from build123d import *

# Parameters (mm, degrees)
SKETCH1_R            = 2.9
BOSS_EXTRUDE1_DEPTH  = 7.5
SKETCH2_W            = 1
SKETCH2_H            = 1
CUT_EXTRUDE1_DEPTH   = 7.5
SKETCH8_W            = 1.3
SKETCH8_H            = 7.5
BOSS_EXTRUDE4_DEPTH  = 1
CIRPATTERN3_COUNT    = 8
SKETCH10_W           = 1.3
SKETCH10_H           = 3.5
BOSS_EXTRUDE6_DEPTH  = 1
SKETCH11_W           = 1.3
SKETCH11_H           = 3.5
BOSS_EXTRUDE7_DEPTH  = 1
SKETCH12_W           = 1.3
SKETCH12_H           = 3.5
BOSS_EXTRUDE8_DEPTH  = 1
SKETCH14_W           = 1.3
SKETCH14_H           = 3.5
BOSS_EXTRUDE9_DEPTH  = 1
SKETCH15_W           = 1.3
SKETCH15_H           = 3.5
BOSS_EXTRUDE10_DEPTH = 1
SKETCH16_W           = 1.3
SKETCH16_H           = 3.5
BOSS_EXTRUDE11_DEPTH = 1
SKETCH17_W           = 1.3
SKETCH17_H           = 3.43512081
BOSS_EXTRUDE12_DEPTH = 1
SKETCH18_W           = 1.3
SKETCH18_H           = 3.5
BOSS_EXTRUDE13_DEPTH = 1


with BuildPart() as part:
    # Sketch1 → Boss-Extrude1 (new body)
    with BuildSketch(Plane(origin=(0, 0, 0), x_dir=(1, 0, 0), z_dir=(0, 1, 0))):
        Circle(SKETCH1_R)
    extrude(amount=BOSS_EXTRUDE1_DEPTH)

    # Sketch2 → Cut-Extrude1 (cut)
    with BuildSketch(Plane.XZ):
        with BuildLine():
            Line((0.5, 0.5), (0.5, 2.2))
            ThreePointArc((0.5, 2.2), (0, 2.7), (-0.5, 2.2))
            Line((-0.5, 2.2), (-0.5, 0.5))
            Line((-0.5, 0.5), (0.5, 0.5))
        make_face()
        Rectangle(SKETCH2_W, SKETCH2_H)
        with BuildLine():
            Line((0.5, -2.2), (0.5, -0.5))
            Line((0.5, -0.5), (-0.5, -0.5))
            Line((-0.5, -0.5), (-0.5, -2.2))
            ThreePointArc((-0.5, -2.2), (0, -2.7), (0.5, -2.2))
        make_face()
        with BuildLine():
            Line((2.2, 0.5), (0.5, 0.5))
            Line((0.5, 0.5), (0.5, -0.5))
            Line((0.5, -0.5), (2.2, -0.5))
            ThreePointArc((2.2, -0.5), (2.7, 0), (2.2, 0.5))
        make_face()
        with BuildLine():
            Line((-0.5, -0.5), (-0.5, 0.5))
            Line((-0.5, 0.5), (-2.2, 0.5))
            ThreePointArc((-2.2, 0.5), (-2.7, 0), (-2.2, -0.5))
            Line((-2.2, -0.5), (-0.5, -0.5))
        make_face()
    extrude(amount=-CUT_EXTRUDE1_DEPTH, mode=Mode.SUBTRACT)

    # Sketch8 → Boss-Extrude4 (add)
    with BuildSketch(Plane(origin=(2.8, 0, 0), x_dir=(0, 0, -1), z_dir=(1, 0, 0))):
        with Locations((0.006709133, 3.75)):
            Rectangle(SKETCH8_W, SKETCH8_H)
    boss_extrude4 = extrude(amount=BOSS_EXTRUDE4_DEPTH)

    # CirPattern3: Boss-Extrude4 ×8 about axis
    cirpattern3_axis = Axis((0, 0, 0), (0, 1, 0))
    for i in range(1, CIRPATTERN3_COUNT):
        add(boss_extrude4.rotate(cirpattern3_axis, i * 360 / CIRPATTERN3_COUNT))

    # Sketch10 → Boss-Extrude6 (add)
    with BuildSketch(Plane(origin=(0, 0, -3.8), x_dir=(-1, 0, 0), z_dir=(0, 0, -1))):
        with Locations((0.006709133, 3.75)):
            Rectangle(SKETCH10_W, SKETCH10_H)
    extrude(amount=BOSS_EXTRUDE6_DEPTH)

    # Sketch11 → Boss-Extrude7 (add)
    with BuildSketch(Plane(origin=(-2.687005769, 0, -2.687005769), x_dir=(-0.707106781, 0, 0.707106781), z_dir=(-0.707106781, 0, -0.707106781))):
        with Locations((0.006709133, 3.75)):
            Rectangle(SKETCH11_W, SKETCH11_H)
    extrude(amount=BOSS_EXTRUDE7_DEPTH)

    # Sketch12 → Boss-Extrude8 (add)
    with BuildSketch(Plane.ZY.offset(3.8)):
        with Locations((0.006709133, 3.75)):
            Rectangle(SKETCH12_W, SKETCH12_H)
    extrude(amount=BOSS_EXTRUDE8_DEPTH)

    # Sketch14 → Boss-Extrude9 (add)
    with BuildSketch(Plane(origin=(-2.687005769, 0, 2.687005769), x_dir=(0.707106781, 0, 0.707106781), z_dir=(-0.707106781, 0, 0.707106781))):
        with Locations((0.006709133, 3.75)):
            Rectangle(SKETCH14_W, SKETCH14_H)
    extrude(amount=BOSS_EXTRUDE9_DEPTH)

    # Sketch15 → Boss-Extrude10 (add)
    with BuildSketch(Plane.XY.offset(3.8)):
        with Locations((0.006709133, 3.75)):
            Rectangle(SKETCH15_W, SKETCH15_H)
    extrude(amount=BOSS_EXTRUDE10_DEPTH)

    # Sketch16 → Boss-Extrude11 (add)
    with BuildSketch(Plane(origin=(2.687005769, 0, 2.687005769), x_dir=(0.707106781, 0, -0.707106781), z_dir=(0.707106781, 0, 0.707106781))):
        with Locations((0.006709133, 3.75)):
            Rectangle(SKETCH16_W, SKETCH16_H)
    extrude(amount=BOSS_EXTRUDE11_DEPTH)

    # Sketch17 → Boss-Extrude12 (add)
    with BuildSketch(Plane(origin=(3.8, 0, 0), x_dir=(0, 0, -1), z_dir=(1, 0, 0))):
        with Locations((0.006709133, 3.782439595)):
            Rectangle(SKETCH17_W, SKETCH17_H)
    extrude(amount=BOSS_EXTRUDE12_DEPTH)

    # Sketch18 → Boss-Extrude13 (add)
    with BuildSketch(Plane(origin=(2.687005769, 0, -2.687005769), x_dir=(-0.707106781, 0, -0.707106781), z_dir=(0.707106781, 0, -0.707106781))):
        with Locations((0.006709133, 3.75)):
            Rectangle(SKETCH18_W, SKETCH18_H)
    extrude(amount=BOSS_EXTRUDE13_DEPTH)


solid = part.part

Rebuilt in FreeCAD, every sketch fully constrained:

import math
import FreeCAD as App
import Part
import Sketcher
Q = App.Units.Quantity

doc = App.newDocument("Part")
body = doc.addObject("PartDesign::Body", "Body")

# Sketch on XZ plane
sketch1 = body.newObject("Sketcher::SketchObject", "Sketch")
sketch1.AttachmentSupport = (doc.getObject("XZ_Plane"), [""])
sketch1.MapMode = "FlatFace"
sketch1.addGeometry(Part.Circle(App.Vector(0, 0, 0), App.Vector(0, 0, 1), 2.9), False)
sketch1.addConstraint(Sketcher.Constraint("Coincident", 0, 3, -1, 1))
sketch1.addConstraint(Sketcher.Constraint("Diameter", 0, Q("5.8 mm")))
pad1 = body.newObject("PartDesign::Pad", "Pad")
pad1.Profile = sketch1
pad1.Length = 7.5
pad1.Reversed = True

# Sketch on XZ plane
sketch2 = body.newObject("Sketcher::SketchObject", "Sketch001")
sketch2.AttachmentSupport = (doc.getObject("XZ_Plane"), [""])
sketch2.MapMode = "FlatFace"
sketch2.addGeometry(Part.ArcOfCircle(Part.Circle(App.Vector(0, 2.2, 0), App.Vector(0, 0, 1), 0.5), math.radians(0), math.radians(180)), False)
sketch2.addGeometry(Part.LineSegment(App.Vector(-0.5, 2.2, 0), App.Vector(-0.5, 0.5, 0)), False)
sketch2.addGeometry(Part.LineSegment(App.Vector(-0.5, 0.5, 0), App.Vector(-2.2, 0.5, 0)), False)
sketch2.addGeometry(Part.ArcOfCircle(Part.Circle(App.Vector(-2.2, 0, 0), App.Vector(0, 0, 1), 0.5), math.radians(90), math.radians(270)), False)
sketch2.addGeometry(Part.LineSegment(App.Vector(-2.2, -0.5, 0), App.Vector(-0.5, -0.5, 0)), False)
sketch2.addGeometry(Part.LineSegment(App.Vector(-0.5, -0.5, 0), App.Vector(-0.5, -2.2, 0)), False)
sketch2.addGeometry(Part.ArcOfCircle(Part.Circle(App.Vector(0, -2.2, 0), App.Vector(0, 0, 1), 0.5), math.radians(180), math.radians(360)), False)
sketch2.addGeometry(Part.LineSegment(App.Vector(0.5, -2.2, 0), App.Vector(0.5, -0.5, 0)), False)
sketch2.addGeometry(Part.LineSegment(App.Vector(0.5, -0.5, 0), App.Vector(2.2, -0.5, 0)), False)
sketch2.addGeometry(Part.ArcOfCircle(Part.Circle(App.Vector(2.2, 0, 0), App.Vector(0, 0, 1), 0.5), math.radians(-90), math.radians(90)), False)
sketch2.addGeometry(Part.LineSegment(App.Vector(2.2, 0.5, 0), App.Vector(0.5, 0.5, 0)), False)
sketch2.addGeometry(Part.LineSegment(App.Vector(0.5, 0.5, 0), App.Vector(0.5, 2.2, 0)), False)
sketch2.addConstraint(Sketcher.Constraint("Tangent", 0, 2, 1, 1))
sketch2.addConstraint(Sketcher.Constraint("Coincident", 1, 2, 2, 1))
sketch2.addConstraint(Sketcher.Constraint("Tangent", 2, 2, 3, 1))
sketch2.addConstraint(Sketcher.Constraint("Tangent", 3, 2, 4, 1))
sketch2.addConstraint(Sketcher.Constraint("Coincident", 4, 2, 5, 1))
sketch2.addConstraint(Sketcher.Constraint("Tangent", 5, 2, 6, 1))
sketch2.addConstraint(Sketcher.Constraint("Tangent", 6, 2, 7, 1))
sketch2.addConstraint(Sketcher.Constraint("Coincident", 7, 2, 8, 1))
sketch2.addConstraint(Sketcher.Constraint("Tangent", 8, 2, 9, 1))
sketch2.addConstraint(Sketcher.Constraint("Tangent", 9, 2, 10, 1))
sketch2.addConstraint(Sketcher.Constraint("Coincident", 10, 2, 11, 1))
sketch2.addConstraint(Sketcher.Constraint("Tangent", 11, 2, 0, 1))
sketch2.addConstraint(Sketcher.Constraint("Vertical", 1))
sketch2.addConstraint(Sketcher.Constraint("Horizontal", 2))
sketch2.addConstraint(Sketcher.Constraint("Horizontal", 4))
sketch2.addConstraint(Sketcher.Constraint("Vertical", 5))
sketch2.addConstraint(Sketcher.Constraint("Vertical", 7))
sketch2.addConstraint(Sketcher.Constraint("Horizontal", 8))
sketch2.addConstraint(Sketcher.Constraint("Horizontal", 10))
sketch2.addConstraint(Sketcher.Constraint("Vertical", 11))
sketch2.addConstraint(Sketcher.Constraint("Equal", 0, 3))
sketch2.addConstraint(Sketcher.Constraint("Equal", 3, 6))
sketch2.addConstraint(Sketcher.Constraint("Equal", 6, 9))
sketch2.addConstraint(Sketcher.Constraint("Symmetric", 0, 3, 6, 3, -1, 1))
sketch2.addConstraint(Sketcher.Constraint("Symmetric", 3, 3, 9, 3, -1, 1))
sketch2.addConstraint(Sketcher.Constraint("Symmetric", 4, 2, 7, 2, -2))
sketch2.addConstraint(Sketcher.Constraint("Equal", 10, 1))
sketch2.addConstraint(Sketcher.Constraint("Radius", 0, Q("0.5 mm")))
sketch2.addConstraint(Sketcher.Constraint("DistanceX", 2, 2, 2, 1, Q("1.7 mm")))
pocket1 = body.newObject("PartDesign::Pocket", "Pocket")
pocket1.Profile = sketch2
pocket1.Length = 7.5

# Sketch on YZ plane
sketch3 = body.newObject("Sketcher::SketchObject", "Sketch002")
sketch3.AttachmentSupport = (doc.getObject("YZ_Plane"), [""])
sketch3.MapMode = "FlatFace"
sketch3.AttachmentOffset = App.Placement(App.Vector(0, 0, 2.8), App.Rotation())
sketch3.addGeometry(Part.LineSegment(App.Vector(7.5, 0.6, 0), App.Vector(0, 0.6, 0)), False)
sketch3.addGeometry(Part.LineSegment(App.Vector(0, 0.6, 0), App.Vector(0, -0.7, 0)), False)
sketch3.addGeometry(Part.LineSegment(App.Vector(0, -0.7, 0), App.Vector(7.5, -0.7, 0)), False)
sketch3.addGeometry(Part.LineSegment(App.Vector(7.5, -0.7, 0), App.Vector(7.5, 0.6, 0)), False)
sketch3.addConstraint(Sketcher.Constraint("Coincident", 0, 2, 1, 1))
sketch3.addConstraint(Sketcher.Constraint("Coincident", 1, 2, 2, 1))
sketch3.addConstraint(Sketcher.Constraint("Coincident", 2, 2, 3, 1))
sketch3.addConstraint(Sketcher.Constraint("Coincident", 3, 2, 0, 1))
sketch3.addConstraint(Sketcher.Constraint("Horizontal", 0))
sketch3.addConstraint(Sketcher.Constraint("Vertical", 1))
sketch3.addConstraint(Sketcher.Constraint("Horizontal", 2))
sketch3.addConstraint(Sketcher.Constraint("Vertical", 3))
sketch3.addConstraint(Sketcher.Constraint("PointOnObject", 0, 2, -2))
sketch3.addConstraint(Sketcher.Constraint("DistanceX", 0, 2, 0, 1, Q("7.5 mm")))
sketch3.addConstraint(Sketcher.Constraint("DistanceY", 1, 2, 1, 1, Q("1.3 mm")))
sketch3.addConstraint(Sketcher.Constraint("DistanceY", -1, 1, 0, 2, Q("0.643291 mm")))
pad2 = body.newObject("PartDesign::Pad", "Pad001")
pad2.Profile = sketch3
pad2.Length = 1
doc.recompute()

polarpattern = body.newObject("PartDesign::PolarPattern", "PolarPattern")
polarpattern.Originals = [pad2]
polarpattern.Axis = (doc.getObject("Y_Axis"), [""])
polarpattern.Angle = 360
polarpattern.Occurrences = 8
body.Tip = polarpattern

# Sketch on XY plane
sketch4 = body.newObject("Sketcher::SketchObject", "Sketch003")
sketch4.AttachmentSupport = (doc.getObject("XY_Plane"), [""])
sketch4.MapMode = "FlatFace"
sketch4.AttachmentOffset = App.Placement(App.Vector(0, 0, -3.8), App.Rotation())
sketch4.addGeometry(Part.LineSegment(App.Vector(0.6, 5.5, 0), App.Vector(0.6, 2, 0)), False)
sketch4.addGeometry(Part.LineSegment(App.Vector(0.6, 2, 0), App.Vector(-0.7, 2, 0)), False)
sketch4.addGeometry(Part.LineSegment(App.Vector(-0.7, 2, 0), App.Vector(-0.7, 5.5, 0)), False)
sketch4.addGeometry(Part.LineSegment(App.Vector(-0.7, 5.5, 0), App.Vector(0.6, 5.5, 0)), False)
sketch4.addConstraint(Sketcher.Constraint("Coincident", 0, 2, 1, 1))
sketch4.addConstraint(Sketcher.Constraint("Coincident", 1, 2, 2, 1))
sketch4.addConstraint(Sketcher.Constraint("Coincident", 2, 2, 3, 1))
sketch4.addConstraint(Sketcher.Constraint("Coincident", 3, 2, 0, 1))
sketch4.addConstraint(Sketcher.Constraint("Vertical", 0))
sketch4.addConstraint(Sketcher.Constraint("Horizontal", 1))
sketch4.addConstraint(Sketcher.Constraint("Vertical", 2))
sketch4.addConstraint(Sketcher.Constraint("Horizontal", 3))
sketch4.addConstraint(Sketcher.Constraint("DistanceX", 1, 2, 1, 1, Q("1.3 mm")))
sketch4.addConstraint(Sketcher.Constraint("DistanceY", 0, 2, 0, 1, Q("3.5 mm")))
sketch4.addConstraint(Sketcher.Constraint("DistanceY", -1, 1, 0, 2, Q("2 mm")))
sketch4.addConstraint(Sketcher.Constraint("DistanceX", -1, 1, 0, 2, Q("0.643291 mm")))
pad3 = body.newObject("PartDesign::Pad", "Pad002")
pad3.Profile = sketch4
pad3.Length = 1
pad3.Reversed = True

# Sketch on an angled plane
sketch5 = body.newObject("Sketcher::SketchObject", "Sketch004")
sketch5.Placement = App.Placement(App.Vector(-2.687006, 0, -2.687006), App.Rotation(App.Vector(-0.707106781, 0, 0.707106781), App.Vector(0, 0.999999999, 0), App.Vector(-0.707106781, 0, -0.707106781), "ZXY"))
sketch5.addGeometry(Part.LineSegment(App.Vector(-0.6, 5.5, 0), App.Vector(-0.6, 2, 0)), False)
sketch5.addGeometry(Part.LineSegment(App.Vector(-0.6, 2, 0), App.Vector(0.7, 2, 0)), False)
sketch5.addGeometry(Part.LineSegment(App.Vector(0.7, 2, 0), App.Vector(0.7, 5.5, 0)), False)
sketch5.addGeometry(Part.LineSegment(App.Vector(0.7, 5.5, 0), App.Vector(-0.6, 5.5, 0)), False)
sketch5.addConstraint(Sketcher.Constraint("Coincident", 0, 2, 1, 1))
sketch5.addConstraint(Sketcher.Constraint("Coincident", 1, 2, 2, 1))
sketch5.addConstraint(Sketcher.Constraint("Coincident", 2, 2, 3, 1))
sketch5.addConstraint(Sketcher.Constraint("Coincident", 3, 2, 0, 1))
sketch5.addConstraint(Sketcher.Constraint("Vertical", 0))
sketch5.addConstraint(Sketcher.Constraint("Horizontal", 1))
sketch5.addConstraint(Sketcher.Constraint("Vertical", 2))
sketch5.addConstraint(Sketcher.Constraint("Horizontal", 3))
sketch5.addConstraint(Sketcher.Constraint("DistanceX", 1, 1, 1, 2, Q("1.3 mm")))
sketch5.addConstraint(Sketcher.Constraint("DistanceY", 0, 2, 0, 1, Q("3.5 mm")))
sketch5.addConstraint(Sketcher.Constraint("DistanceY", -1, 1, 0, 2, Q("2 mm")))
sketch5.addConstraint(Sketcher.Constraint("DistanceX", 0, 2, -1, 1, Q("0.643291 mm")))
pad4 = body.newObject("PartDesign::Pad", "Pad003")
pad4.Profile = sketch5
pad4.Length = 1

# Sketch on YZ plane
sketch6 = body.newObject("Sketcher::SketchObject", "Sketch005")
sketch6.AttachmentSupport = (doc.getObject("YZ_Plane"), [""])
sketch6.MapMode = "FlatFace"
sketch6.AttachmentOffset = App.Placement(App.Vector(0, 0, -3.8), App.Rotation())
sketch6.addGeometry(Part.LineSegment(App.Vector(5.5, -0.6, 0), App.Vector(2, -0.6, 0)), False)
sketch6.addGeometry(Part.LineSegment(App.Vector(2, -0.6, 0), App.Vector(2, 0.7, 0)), False)
sketch6.addGeometry(Part.LineSegment(App.Vector(2, 0.7, 0), App.Vector(5.5, 0.7, 0)), False)
sketch6.addGeometry(Part.LineSegment(App.Vector(5.5, 0.7, 0), App.Vector(5.5, -0.6, 0)), False)
sketch6.addConstraint(Sketcher.Constraint("Coincident", 0, 2, 1, 1))
sketch6.addConstraint(Sketcher.Constraint("Coincident", 1, 2, 2, 1))
sketch6.addConstraint(Sketcher.Constraint("Coincident", 2, 2, 3, 1))
sketch6.addConstraint(Sketcher.Constraint("Coincident", 3, 2, 0, 1))
sketch6.addConstraint(Sketcher.Constraint("Horizontal", 0))
sketch6.addConstraint(Sketcher.Constraint("Vertical", 1))
sketch6.addConstraint(Sketcher.Constraint("Horizontal", 2))
sketch6.addConstraint(Sketcher.Constraint("Vertical", 3))
sketch6.addConstraint(Sketcher.Constraint("DistanceX", 0, 2, 0, 1, Q("3.5 mm")))
sketch6.addConstraint(Sketcher.Constraint("DistanceY", 1, 1, 1, 2, Q("1.3 mm")))
sketch6.addConstraint(Sketcher.Constraint("DistanceX", -1, 1, 0, 2, Q("2 mm")))
sketch6.addConstraint(Sketcher.Constraint("DistanceY", 0, 2, -1, 1, Q("0.643291 mm")))
pad5 = body.newObject("PartDesign::Pad", "Pad004")
pad5.Profile = sketch6
pad5.Length = 1
pad5.Reversed = True

# Sketch on an angled plane
sketch7 = body.newObject("Sketcher::SketchObject", "Sketch006")
sketch7.Placement = App.Placement(App.Vector(-2.687006, 0, 2.687006), App.Rotation(App.Vector(0.707106781, 0, 0.707106781), App.Vector(0, 0.999999999, 0), App.Vector(-0.707106781, 0, 0.707106781), "ZXY"))
sketch7.addGeometry(Part.LineSegment(App.Vector(-0.6, 5.5, 0), App.Vector(-0.6, 2, 0)), False)
sketch7.addGeometry(Part.LineSegment(App.Vector(-0.6, 2, 0), App.Vector(0.7, 2, 0)), False)
sketch7.addGeometry(Part.LineSegment(App.Vector(0.7, 2, 0), App.Vector(0.7, 5.5, 0)), False)
sketch7.addGeometry(Part.LineSegment(App.Vector(0.7, 5.5, 0), App.Vector(-0.6, 5.5, 0)), False)
sketch7.addConstraint(Sketcher.Constraint("Coincident", 0, 2, 1, 1))
sketch7.addConstraint(Sketcher.Constraint("Coincident", 1, 2, 2, 1))
sketch7.addConstraint(Sketcher.Constraint("Coincident", 2, 2, 3, 1))
sketch7.addConstraint(Sketcher.Constraint("Coincident", 3, 2, 0, 1))
sketch7.addConstraint(Sketcher.Constraint("Vertical", 0))
sketch7.addConstraint(Sketcher.Constraint("Horizontal", 1))
sketch7.addConstraint(Sketcher.Constraint("Vertical", 2))
sketch7.addConstraint(Sketcher.Constraint("Horizontal", 3))
sketch7.addConstraint(Sketcher.Constraint("DistanceX", 1, 1, 1, 2, Q("1.3 mm")))
sketch7.addConstraint(Sketcher.Constraint("DistanceY", 0, 2, 0, 1, Q("3.5 mm")))
sketch7.addConstraint(Sketcher.Constraint("DistanceY", -1, 1, 0, 2, Q("2 mm")))
sketch7.addConstraint(Sketcher.Constraint("DistanceX", 0, 2, -1, 1, Q("0.643291 mm")))
pad6 = body.newObject("PartDesign::Pad", "Pad005")
pad6.Profile = sketch7
pad6.Length = 1

# Sketch on XY plane
sketch8 = body.newObject("Sketcher::SketchObject", "Sketch007")
sketch8.AttachmentSupport = (doc.getObject("XY_Plane"), [""])
sketch8.MapMode = "FlatFace"
sketch8.AttachmentOffset = App.Placement(App.Vector(0, 0, 3.8), App.Rotation())
sketch8.addGeometry(Part.LineSegment(App.Vector(-0.6, 5.5, 0), App.Vector(-0.6, 2, 0)), False)
sketch8.addGeometry(Part.LineSegment(App.Vector(-0.6, 2, 0), App.Vector(0.7, 2, 0)), False)
sketch8.addGeometry(Part.LineSegment(App.Vector(0.7, 2, 0), App.Vector(0.7, 5.5, 0)), False)
sketch8.addGeometry(Part.LineSegment(App.Vector(0.7, 5.5, 0), App.Vector(-0.6, 5.5, 0)), False)
sketch8.addConstraint(Sketcher.Constraint("Coincident", 0, 2, 1, 1))
sketch8.addConstraint(Sketcher.Constraint("Coincident", 1, 2, 2, 1))
sketch8.addConstraint(Sketcher.Constraint("Coincident", 2, 2, 3, 1))
sketch8.addConstraint(Sketcher.Constraint("Coincident", 3, 2, 0, 1))
sketch8.addConstraint(Sketcher.Constraint("Vertical", 0))
sketch8.addConstraint(Sketcher.Constraint("Horizontal", 1))
sketch8.addConstraint(Sketcher.Constraint("Vertical", 2))
sketch8.addConstraint(Sketcher.Constraint("Horizontal", 3))
sketch8.addConstraint(Sketcher.Constraint("DistanceX", 1, 1, 1, 2, Q("1.3 mm")))
sketch8.addConstraint(Sketcher.Constraint("DistanceY", 0, 2, 0, 1, Q("3.5 mm")))
sketch8.addConstraint(Sketcher.Constraint("DistanceY", -1, 1, 0, 2, Q("2 mm")))
sketch8.addConstraint(Sketcher.Constraint("DistanceX", 0, 2, -1, 1, Q("0.643291 mm")))
pad7 = body.newObject("PartDesign::Pad", "Pad006")
pad7.Profile = sketch8
pad7.Length = 1

# Sketch on an angled plane
sketch9 = body.newObject("Sketcher::SketchObject", "Sketch008")
sketch9.Placement = App.Placement(App.Vector(2.687006, 0, 2.687006), App.Rotation(App.Vector(0.707106781, 0, -0.707106781), App.Vector(0, 0.999999999, 0), App.Vector(0.707106781, 0, 0.707106781), "ZXY"))
sketch9.addGeometry(Part.LineSegment(App.Vector(-0.6, 5.5, 0), App.Vector(-0.6, 2, 0)), False)
sketch9.addGeometry(Part.LineSegment(App.Vector(-0.6, 2, 0), App.Vector(0.7, 2, 0)), False)
sketch9.addGeometry(Part.LineSegment(App.Vector(0.7, 2, 0), App.Vector(0.7, 5.5, 0)), False)
sketch9.addGeometry(Part.LineSegment(App.Vector(0.7, 5.5, 0), App.Vector(-0.6, 5.5, 0)), False)
sketch9.addConstraint(Sketcher.Constraint("Coincident", 0, 2, 1, 1))
sketch9.addConstraint(Sketcher.Constraint("Coincident", 1, 2, 2, 1))
sketch9.addConstraint(Sketcher.Constraint("Coincident", 2, 2, 3, 1))
sketch9.addConstraint(Sketcher.Constraint("Coincident", 3, 2, 0, 1))
sketch9.addConstraint(Sketcher.Constraint("Vertical", 0))
sketch9.addConstraint(Sketcher.Constraint("Horizontal", 1))
sketch9.addConstraint(Sketcher.Constraint("Vertical", 2))
sketch9.addConstraint(Sketcher.Constraint("Horizontal", 3))
sketch9.addConstraint(Sketcher.Constraint("DistanceX", 1, 1, 1, 2, Q("1.3 mm")))
sketch9.addConstraint(Sketcher.Constraint("DistanceY", 0, 2, 0, 1, Q("3.5 mm")))
sketch9.addConstraint(Sketcher.Constraint("DistanceY", -1, 1, 0, 2, Q("2 mm")))
sketch9.addConstraint(Sketcher.Constraint("DistanceX", 0, 2, -1, 1, Q("0.643291 mm")))
pad8 = body.newObject("PartDesign::Pad", "Pad007")
pad8.Profile = sketch9
pad8.Length = 1

# Sketch on YZ plane
sketch10 = body.newObject("Sketcher::SketchObject", "Sketch009")
sketch10.AttachmentSupport = (doc.getObject("YZ_Plane"), [""])
sketch10.MapMode = "FlatFace"
sketch10.AttachmentOffset = App.Placement(App.Vector(0, 0, 3.8), App.Rotation())
sketch10.addGeometry(Part.LineSegment(App.Vector(5.5, 0.6, 0), App.Vector(2.1, 0.6, 0)), False)
sketch10.addGeometry(Part.LineSegment(App.Vector(2.1, 0.6, 0), App.Vector(2.1, -0.7, 0)), False)
sketch10.addGeometry(Part.LineSegment(App.Vector(2.1, -0.7, 0), App.Vector(5.5, -0.7, 0)), False)
sketch10.addGeometry(Part.LineSegment(App.Vector(5.5, -0.7, 0), App.Vector(5.5, 0.6, 0)), False)
sketch10.addConstraint(Sketcher.Constraint("Coincident", 0, 2, 1, 1))
sketch10.addConstraint(Sketcher.Constraint("Coincident", 1, 2, 2, 1))
sketch10.addConstraint(Sketcher.Constraint("Coincident", 2, 2, 3, 1))
sketch10.addConstraint(Sketcher.Constraint("Coincident", 3, 2, 0, 1))
sketch10.addConstraint(Sketcher.Constraint("Horizontal", 0))
sketch10.addConstraint(Sketcher.Constraint("Vertical", 1))
sketch10.addConstraint(Sketcher.Constraint("Horizontal", 2))
sketch10.addConstraint(Sketcher.Constraint("Vertical", 3))
sketch10.addConstraint(Sketcher.Constraint("DistanceY", 1, 2, 1, 1, Q("1.3 mm")))
sketch10.addConstraint(Sketcher.Constraint("DistanceX", -1, 1, 2, 2, Q("5.5 mm")))
sketch10.addConstraint(Sketcher.Constraint("DistanceX", 0, 2, 0, 1, Q("3.435121 mm")))
sketch10.addConstraint(Sketcher.Constraint("DistanceY", -1, 1, 0, 2, Q("0.643291 mm")))
pad9 = body.newObject("PartDesign::Pad", "Pad008")
pad9.Profile = sketch10
pad9.Length = 1

# Sketch on an angled plane
sketch11 = body.newObject("Sketcher::SketchObject", "Sketch010")
sketch11.Placement = App.Placement(App.Vector(2.687006, 0, -2.687006), App.Rotation(App.Vector(-0.707106781, 0, -0.707106781), App.Vector(0, 0.999999999, 0), App.Vector(0.707106781, 0, -0.707106781), "ZXY"))
sketch11.addGeometry(Part.LineSegment(App.Vector(-0.6, 5.5, 0), App.Vector(-0.6, 2, 0)), False)
sketch11.addGeometry(Part.LineSegment(App.Vector(-0.6, 2, 0), App.Vector(0.7, 2, 0)), False)
sketch11.addGeometry(Part.LineSegment(App.Vector(0.7, 2, 0), App.Vector(0.7, 5.5, 0)), False)
sketch11.addGeometry(Part.LineSegment(App.Vector(0.7, 5.5, 0), App.Vector(-0.6, 5.5, 0)), False)
sketch11.addConstraint(Sketcher.Constraint("Coincident", 0, 2, 1, 1))
sketch11.addConstraint(Sketcher.Constraint("Coincident", 1, 2, 2, 1))
sketch11.addConstraint(Sketcher.Constraint("Coincident", 2, 2, 3, 1))
sketch11.addConstraint(Sketcher.Constraint("Coincident", 3, 2, 0, 1))
sketch11.addConstraint(Sketcher.Constraint("Vertical", 0))
sketch11.addConstraint(Sketcher.Constraint("Horizontal", 1))
sketch11.addConstraint(Sketcher.Constraint("Vertical", 2))
sketch11.addConstraint(Sketcher.Constraint("Horizontal", 3))
sketch11.addConstraint(Sketcher.Constraint("DistanceX", 1, 1, 1, 2, Q("1.3 mm")))
sketch11.addConstraint(Sketcher.Constraint("DistanceY", 0, 2, 0, 1, Q("3.5 mm")))
sketch11.addConstraint(Sketcher.Constraint("DistanceY", -1, 1, 0, 2, Q("2 mm")))
sketch11.addConstraint(Sketcher.Constraint("DistanceX", 0, 2, -1, 1, Q("0.643291 mm")))
pad10 = body.newObject("PartDesign::Pad", "Pad009")
pad10.Profile = sketch11
pad10.Length = 1

doc.recompute()
